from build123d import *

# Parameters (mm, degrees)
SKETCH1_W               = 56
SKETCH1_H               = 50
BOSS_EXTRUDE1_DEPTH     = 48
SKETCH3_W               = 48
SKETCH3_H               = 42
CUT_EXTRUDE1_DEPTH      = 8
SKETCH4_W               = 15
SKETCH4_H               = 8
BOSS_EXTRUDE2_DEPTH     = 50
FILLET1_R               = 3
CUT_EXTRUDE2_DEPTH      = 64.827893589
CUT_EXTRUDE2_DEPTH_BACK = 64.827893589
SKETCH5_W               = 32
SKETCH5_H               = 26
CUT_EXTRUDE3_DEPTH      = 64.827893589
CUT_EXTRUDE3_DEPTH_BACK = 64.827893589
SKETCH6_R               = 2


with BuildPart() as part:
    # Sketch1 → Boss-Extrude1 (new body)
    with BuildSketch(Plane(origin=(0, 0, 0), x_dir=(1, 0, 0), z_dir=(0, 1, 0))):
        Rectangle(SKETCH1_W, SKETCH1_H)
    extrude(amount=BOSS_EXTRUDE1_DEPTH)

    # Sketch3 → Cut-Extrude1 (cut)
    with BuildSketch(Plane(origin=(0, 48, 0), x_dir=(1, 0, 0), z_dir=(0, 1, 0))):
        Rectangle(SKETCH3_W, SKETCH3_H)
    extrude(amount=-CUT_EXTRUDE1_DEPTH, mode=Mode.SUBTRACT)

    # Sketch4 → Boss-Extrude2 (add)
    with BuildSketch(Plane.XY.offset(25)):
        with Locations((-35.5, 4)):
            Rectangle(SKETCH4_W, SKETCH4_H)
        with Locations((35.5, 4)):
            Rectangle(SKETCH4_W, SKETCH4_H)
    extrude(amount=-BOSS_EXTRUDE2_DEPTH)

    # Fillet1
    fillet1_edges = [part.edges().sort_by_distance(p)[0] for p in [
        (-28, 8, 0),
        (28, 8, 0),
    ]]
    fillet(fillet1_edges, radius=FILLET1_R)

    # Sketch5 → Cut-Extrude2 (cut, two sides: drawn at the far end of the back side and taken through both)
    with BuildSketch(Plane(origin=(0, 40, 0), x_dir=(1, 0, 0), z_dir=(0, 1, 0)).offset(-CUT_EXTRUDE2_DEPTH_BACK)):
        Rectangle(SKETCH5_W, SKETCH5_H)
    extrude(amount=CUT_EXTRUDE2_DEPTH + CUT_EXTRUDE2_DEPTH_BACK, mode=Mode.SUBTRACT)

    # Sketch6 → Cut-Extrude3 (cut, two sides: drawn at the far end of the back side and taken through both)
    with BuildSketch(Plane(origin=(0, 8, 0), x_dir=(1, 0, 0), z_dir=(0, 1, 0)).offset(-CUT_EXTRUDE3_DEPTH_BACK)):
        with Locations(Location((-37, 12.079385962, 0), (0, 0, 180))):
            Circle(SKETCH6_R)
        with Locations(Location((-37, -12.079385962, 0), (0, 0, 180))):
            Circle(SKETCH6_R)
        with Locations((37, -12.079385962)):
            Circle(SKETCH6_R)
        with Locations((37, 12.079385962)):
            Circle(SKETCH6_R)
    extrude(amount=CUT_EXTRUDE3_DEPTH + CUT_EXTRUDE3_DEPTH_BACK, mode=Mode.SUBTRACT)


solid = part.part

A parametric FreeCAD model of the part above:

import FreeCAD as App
import Part
import Sketcher

V = App.Vector


def edges_at(feature, points):
    """Names of the edges that pass closest to the given points."""
    edges = feature.Shape.Edges
    near = lambda p: min(range(len(edges)), key=lambda i: edges[i].distToShape(Part.Vertex(*p))[0])
    return sorted({f"Edge{near(p) + 1}" for p in points})

doc = App.newDocument("Part")
body = doc.addObject("PartDesign::Body", "Body")

# Sketch on XZ plane
sketch1 = body.newObject("Sketcher::SketchObject", "Sketch")
sketch1.AttachmentSupport = (doc.getObject("XZ_Plane"), [""])
sketch1.MapMode = "FlatFace"
sketch1.addGeometry([
    Part.LineSegment(V(-28, -25, 0), V(-28, 25, 0)),
    Part.LineSegment(V(-28, 25, 0), V(28, 25, 0)),
    Part.LineSegment(V(28, 25, 0), V(28, -25, 0)),
    Part.LineSegment(V(28, -25, 0), V(-28, -25, 0)),
], False)
sketch1.addConstraint([
    Sketcher.Constraint("Coincident", 0, 2, 1, 1),
    Sketcher.Constraint("Coincident", 1, 2, 2, 1),
    Sketcher.Constraint("Coincident", 2, 2, 3, 1),
    Sketcher.Constraint("Coincident", 3, 2, 0, 1),
    Sketcher.Constraint("Vertical", 0),
    Sketcher.Constraint("Horizontal", 1),
    Sketcher.Constraint("Vertical", 2),
    Sketcher.Constraint("Horizontal", 3),
    Sketcher.Constraint("Symmetric", 0, 2, 2, 2, -1, 1),
    Sketcher.Constraint("DistanceX", 1, 1, 1, 2, 56.0),
    Sketcher.Constraint("DistanceY", 0, 1, 0, 2, 50.0),
])
pad1 = body.newObject("PartDesign::Pad", "Pad")
pad1.Profile = sketch1
pad1.Length = 48
pad1.Reversed = True

# Sketch on XZ plane
sketch2 = body.newObject("Sketcher::SketchObject", "Sketch001")
sketch2.AttachmentSupport = (doc.getObject("XZ_Plane"), [""])
sketch2.MapMode = "FlatFace"
sketch2.AttachmentOffset = App.Placement(V(0, 0, -48), App.Rotation())
sketch2.addGeometry([
    Part.LineSegment(V(-24, -21, 0), V(-24, 21, 0)),
    Part.LineSegment(V(-24, 21, 0), V(24, 21, 0)),
    Part.LineSegment(V(24, 21, 0), V(24, -21, 0)),
    Part.LineSegment(V(24, -21, 0), V(-24, -21, 0)),
], False)
sketch2.addConstraint([
    Sketcher.Constraint("Coincident", 0, 2, 1, 1),
    Sketcher.Constraint("Coincident", 1, 2, 2, 1),
    Sketcher.Constraint("Coincident", 2, 2, 3, 1),
    Sketcher.Constraint("Coincident", 3, 2, 0, 1),
    Sketcher.Constraint("Vertical", 0),
    Sketcher.Constraint("Horizontal", 1),
    Sketcher.Constraint("Vertical", 2),
    Sketcher.Constraint("Horizontal", 3),
    Sketcher.Constraint("Symmetric", 0, 2, 2, 2, -1, 1),
    Sketcher.Constraint("DistanceX", 1, 1, 1, 2, 48.0),
    Sketcher.Constraint("DistanceY", 0, 1, 0, 2, 42.0),
])
pocket1 = body.newObject("PartDesign::Pocket", "Pocket")
pocket1.Profile = sketch2
pocket1.Length = 8
pocket1.Reversed = True

# Sketch on XY plane
sketch3 = body.newObject("Sketcher::SketchObject", "Sketch002")
sketch3.AttachmentSupport = (doc.getObject("XY_Plane"), [""])
sketch3.MapMode = "FlatFace"
sketch3.AttachmentOffset = App.Placement(V(0, 0, 25), App.Rotation())
sketch3.addGeometry([
    Part.LineSegment(V(-43, 8, 0), V(-43, 0, 0)),  # 0
    Part.LineSegment(V(-43, 0, 0), V(-28, 0, 0)),  # 1
    Part.LineSegment(V(-28, 0, 0), V(-28, 8, 0)),  # 2
    Part.LineSegment(V(-28, 8, 0), V(-43, 8, 0)),  # 3
    Part.LineSegment(V(28, 8, 0), V(28, 0, 0)),  # 4
    Part.LineSegment(V(28, 0, 0), V(43, 0, 0)),  # 5
    Part.LineSegment(V(43, 0, 0), V(43, 8, 0)),  # 6
    Part.LineSegment(V(43, 8, 0), V(28, 8, 0)),  # 7
], False)
sketch3.addConstraint([
    Sketcher.Constraint("Coincident", 0, 2, 1, 1),
    Sketcher.Constraint("Coincident", 1, 2, 2, 1),
    Sketcher.Constraint("Coincident", 2, 2, 3, 1),
    Sketcher.Constraint("Coincident", 3, 2, 0, 1),
    Sketcher.Constraint("Coincident", 4, 2, 5, 1),
    Sketcher.Constraint("Coincident", 5, 2, 6, 1),
    Sketcher.Constraint("Coincident", 6, 2, 7, 1),
    Sketcher.Constraint("Coincident", 7, 2, 4, 1),
    Sketcher.Constraint("Vertical", 0),
    Sketcher.Constraint("Horizontal", 1),
    Sketcher.Constraint("Vertical", 2),
    Sketcher.Constraint("Horizontal", 3),
    Sketcher.Constraint("Vertical", 4),
    Sketcher.Constraint("Horizontal", 5),
    Sketcher.Constraint("Vertical", 6),
    Sketcher.Constraint("Horizontal", 7),
    Sketcher.Constraint("Symmetric", 1, 2, 4, 2, -1, 1),
    Sketcher.Constraint("Symmetric", 0, 2, 5, 2, -2),
    Sketcher.Constraint("Horizontal", 3, 2, 6, 2),
    Sketcher.Constraint("DistanceX", 1, 1, 1, 2, 15.0),
    Sketcher.Constraint("DistanceY", 0, 2, 0, 1, 8.0),
    Sketcher.Constraint("DistanceX", 0, 2, -1, 1, 43.0),
])
pad2 = body.newObject("PartDesign::Pad", "Pad001")
pad2.Profile = sketch3
pad2.Length = 50
pad2.Reversed = True
doc.recompute()

fillet = body.newObject("PartDesign::Fillet", "Fillet")
fillet.Base = (pad2, edges_at(pad2, [(-28, 8, 0), (28, 8, 0)]))
fillet.Radius = 3

# Sketch on XZ plane
sketch4 = body.newObject("Sketcher::SketchObject", "Sketch003")
sketch4.AttachmentSupport = (doc.getObject("XZ_Plane"), [""])
sketch4.MapMode = "FlatFace"
sketch4.AttachmentOffset = App.Placement(V(0, 0, -40), App.Rotation())
sketch4.addGeometry([
    Part.LineSegment(V(-16, -13, 0), V(-16, 13, 0)),
    Part.LineSegment(V(-16, 13, 0), V(16, 13, 0)),
    Part.LineSegment(V(16, 13, 0), V(16, -13, 0)),
    Part.LineSegment(V(16, -13, 0), V(-16, -13, 0)),
], False)
sketch4.addConstraint([
    Sketcher.Constraint("Coincident", 0, 2, 1, 1),
    Sketcher.Constraint("Coincident", 1, 2, 2, 1),
    Sketcher.Constraint("Coincident", 2, 2, 3, 1),
    Sketcher.Constraint("Coincident", 3, 2, 0, 1),
    Sketcher.Constraint("Vertical", 0),
    Sketcher.Constraint("Horizontal", 1),
    Sketcher.Constraint("Vertical", 2),
    Sketcher.Constraint("Horizontal", 3),
    Sketcher.Constraint("Symmetric", 0, 2, 2, 2, -1, 1),
    Sketcher.Constraint("DistanceX", 1, 1, 1, 2, 32.0),
    Sketcher.Constraint("DistanceY", 0, 1, 0, 2, 26.0),
])
pocket2 = body.newObject("PartDesign::Pocket", "Pocket001")
pocket2.Profile = sketch4
pocket2.Type = "ThroughAll"
pocket2.Midplane = True

# Sketch on XZ plane
sketch5 = body.newObject("Sketcher::SketchObject", "Sketch004")
sketch5.AttachmentSupport = (doc.getObject("XZ_Plane"), [""])
sketch5.MapMode = "FlatFace"
sketch5.AttachmentOffset = App.Placement(V(0, 0, -8), App.Rotation())
sketch5.addGeometry([
    Part.Circle(V(-37, -12.1, 0), V(0, 0, 1), 2),
    Part.Circle(V(-37, 12.1, 0), V(0, 0, 1), 2),
    Part.Circle(V(37, 12.1, 0), V(0, 0, 1), 2),
    Part.Circle(V(37, -12.1, 0), V(0, 0, 1), 2),
], False)
sketch5.addConstraint([
    Sketcher.Constraint("Equal", 0, 1),
    Sketcher.Constraint("Equal", 1, 2),
    Sketcher.Constraint("Equal", 2, 3),
    Sketcher.Constraint("Symmetric", 0, 3, 2, 3, -1, 1),
    Sketcher.Constraint("Symmetric", 1, 3, 3, 3, -1, 1),
    Sketcher.Constraint("Symmetric", 1, 3, 2, 3, -2),
    Sketcher.Constraint("Diameter", 0, 4.0),
    Sketcher.Constraint("DistanceX", 0, 3, -1, 1, 37.0),
    Sketcher.Constraint("DistanceY", 0, 3, 1, 3, 24.158772),
])
pocket3 = body.newObject("PartDesign::Pocket", "Pocket002")
pocket3.Profile = sketch5
pocket3.Type = "ThroughAll"
pocket3.Midplane = True

doc.recompute()
